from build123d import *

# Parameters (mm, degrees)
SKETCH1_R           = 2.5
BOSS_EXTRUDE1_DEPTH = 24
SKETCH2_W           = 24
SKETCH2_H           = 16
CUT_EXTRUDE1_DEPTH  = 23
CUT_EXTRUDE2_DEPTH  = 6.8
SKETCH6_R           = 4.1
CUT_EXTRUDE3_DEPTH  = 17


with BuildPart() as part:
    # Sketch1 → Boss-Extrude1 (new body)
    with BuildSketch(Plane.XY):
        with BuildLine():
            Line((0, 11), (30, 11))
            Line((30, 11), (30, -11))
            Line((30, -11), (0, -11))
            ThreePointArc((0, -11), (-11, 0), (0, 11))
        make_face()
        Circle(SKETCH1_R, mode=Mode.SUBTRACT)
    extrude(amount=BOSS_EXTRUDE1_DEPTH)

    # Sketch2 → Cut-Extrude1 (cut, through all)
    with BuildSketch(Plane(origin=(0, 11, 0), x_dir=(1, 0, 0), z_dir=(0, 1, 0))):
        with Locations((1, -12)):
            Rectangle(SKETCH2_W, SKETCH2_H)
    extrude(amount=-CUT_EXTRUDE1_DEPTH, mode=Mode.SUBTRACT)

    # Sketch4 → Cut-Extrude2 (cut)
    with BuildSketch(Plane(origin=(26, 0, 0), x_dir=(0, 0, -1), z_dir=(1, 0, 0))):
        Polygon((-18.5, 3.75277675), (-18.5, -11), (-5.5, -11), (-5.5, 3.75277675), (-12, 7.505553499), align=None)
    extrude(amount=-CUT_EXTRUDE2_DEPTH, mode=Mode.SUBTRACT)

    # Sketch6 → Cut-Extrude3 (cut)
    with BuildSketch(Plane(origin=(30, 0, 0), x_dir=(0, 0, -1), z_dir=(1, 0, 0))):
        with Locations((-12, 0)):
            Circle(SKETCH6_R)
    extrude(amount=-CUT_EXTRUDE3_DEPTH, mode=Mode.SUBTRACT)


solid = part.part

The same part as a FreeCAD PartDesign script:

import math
import FreeCAD as App
import Part
import Sketcher
Q = App.Units.Quantity

doc = App.newDocument("Part")
body = doc.addObject("PartDesign::Body", "Body")

# Sketch on XY plane
sketch1 = body.newObject("Sketcher::SketchObject", "Sketch")
sketch1.AttachmentSupport = (doc.getObject("XY_Plane"), [""])
sketch1.MapMode = "FlatFace"
sketch1.addGeometry(Part.LineSegment(App.Vector(30, 11, 0), App.Vector(0, 11, 0)), False)
sketch1.addGeometry(Part.ArcOfCircle(Part.Circle(App.Vector(0, 0, 0), App.Vector(0, 0, 1), 11), math.radians(90), math.radians(270)), False)
sketch1.addGeometry(Part.LineSegment(App.Vector(0, -11, 0), App.Vector(30, -11, 0)), False)
sketch1.addGeometry(Part.LineSegment(App.Vector(30, -11, 0), App.Vector(30, 11, 0)), False)
sketch1.addGeometry(Part.Circle(App.Vector(0, 0, 0), App.Vector(0, 0, 1), 2.5), False)
sketch1.addConstraint(Sketcher.Constraint("Tangent", 0, 2, 1, 1))
sketch1.addConstraint(Sketcher.Constraint("Tangent", 1, 2, 2, 1))
sketch1.addConstraint(Sketcher.Constraint("Coincident", 2, 2, 3, 1))
sketch1.addConstraint(Sketcher.Constraint("Coincident", 3, 2, 0, 1))
sketch1.addConstraint(Sketcher.Constraint("Horizontal", 0))
sketch1.addConstraint(Sketcher.Constraint("Horizontal", 2))
sketch1.addConstraint(Sketcher.Constraint("Vertical", 3))
sketch1.addConstraint(Sketcher.Constraint("Coincident", 1, 3, -1, 1))
sketch1.addConstraint(Sketcher.Constraint("Coincident", 4, 3, -1, 1))
sketch1.addConstraint(Sketcher.Constraint("Diameter", 4, Q("5 mm")))
sketch1.addConstraint(Sketcher.Constraint("Radius", 1, Q("11 mm")))
sketch1.addConstraint(Sketcher.Constraint("DistanceX", 0, 2, 0, 1, Q("30 mm")))
pad1 = body.newObject("PartDesign::Pad", "Pad")
pad1.Profile = sketch1
pad1.Length = 24

# Sketch on XZ plane
sketch2 = body.newObject("Sketcher::SketchObject", "Sketch001")
sketch2.AttachmentSupport = (doc.getObject("XZ_Plane"), [""])
sketch2.MapMode = "FlatFace"
sketch2.AttachmentOffset = App.Placement(App.Vector(0, 0, -11), App.Rotation())
sketch2.addGeometry(Part.LineSegment(App.Vector(-11, 4, 0), App.Vector(-11, 20, 0)), False)
sketch2.addGeometry(Part.LineSegment(App.Vector(-11, 20, 0), App.Vector(13, 20, 0)), False)
sketch2.addGeometry(Part.LineSegment(App.Vector(13, 20, 0), App.Vector(13, 4, 0)), False)
sketch2.addGeometry(Part.LineSegment(App.Vector(13, 4, 0), App.Vector(-11, 4, 0)), False)
sketch2.addConstraint(Sketcher.Constraint("Coincident", 0, 2, 1, 1))
sketch2.addConstraint(Sketcher.Constraint("Coincident", 1, 2, 2, 1))
sketch2.addConstraint(Sketcher.Constraint("Coincident", 2, 2, 3, 1))
sketch2.addConstraint(Sketcher.Constraint("Coincident", 3, 2, 0, 1))
sketch2.addConstraint(Sketcher.Constraint("Vertical", 0))
sketch2.addConstraint(Sketcher.Constraint("Horizontal", 1))
sketch2.addConstraint(Sketcher.Constraint("Vertical", 2))
sketch2.addConstraint(Sketcher.Constraint("Horizontal", 3))
sketch2.addConstraint(Sketcher.Constraint("DistanceX", 1, 1, 1, 2, Q("24 mm")))
sketch2.addConstraint(Sketcher.Constraint("DistanceY", 0, 1, 0, 2, Q("16 mm")))
sketch2.addConstraint(Sketcher.Constraint("DistanceX", 0, 2, -1, 1, Q("11 mm")))
sketch2.addConstraint(Sketcher.Constraint("DistanceY", -1, 1, 0, 2, Q("20 mm")))
pocket1 = body.newObject("PartDesign::Pocket", "Pocket")
pocket1.Profile = sketch2
pocket1.Type = "ThroughAll"
pocket1.Reversed = True

# Sketch on YZ plane
sketch3 = body.newObject("Sketcher::SketchObject", "Sketch002")
sketch3.AttachmentSupport = (doc.getObject("YZ_Plane"), [""])
sketch3.MapMode = "FlatFace"
sketch3.AttachmentOffset = App.Placement(App.Vector(0, 0, 26), App.Rotation())
sketch3.addGeometry(Part.LineSegment(App.Vector(4, 18, 0), App.Vector(-11, 18, 0)), False)
sketch3.addGeometry(Part.LineSegment(App.Vector(-11, 18, 0), App.Vector(-11, 6, 0)), False)
sketch3.addGeometry(Part.LineSegment(App.Vector(-11, 6, 0), App.Vector(4, 6, 0)), False)
sketch3.addGeometry(Part.LineSegment(App.Vector(4, 6, 0), App.Vector(8, 12, 0)), False)
sketch3.addGeometry(Part.LineSegment(App.Vector(8, 12, 0), App.Vector(4, 18, 0)), False)
sketch3.addConstraint(Sketcher.Constraint("Coincident", 0, 2, 1, 1))
sketch3.addConstraint(Sketcher.Constraint("Coincident", 1, 2, 2, 1))
sketch3.addConstraint(Sketcher.Constraint("Coincident", 2, 2, 3, 1))
sketch3.addConstraint(Sketcher.Constraint("Coincident", 3, 2, 4, 1))
sketch3.addConstraint(Sketcher.Constraint("Coincident", 4, 2, 0, 1))
sketch3.addConstraint(Sketcher.Constraint("Horizontal", 0))
sketch3.addConstraint(Sketcher.Constraint("Vertical", 1))
sketch3.addConstraint(Sketcher.Constraint("Horizontal", 2))
sketch3.addConstraint(Sketcher.Constraint("Vertical", 2, 2, 4, 2))
sketch3.addConstraint(Sketcher.Constraint("Equal", 3, 4))
sketch3.addConstraint(Sketcher.Constraint("DistanceY", 1, 2, 1, 1, Q("13 mm")))
sketch3.addConstraint(Sketcher.Constraint("Angle", 3, Q("60 deg")))
sketch3.addConstraint(Sketcher.Constraint("DistanceX", 0, 2, -1, 1, Q("11 mm")))
sketch3.addConstraint(Sketcher.Constraint("DistanceY", -1, 1, 3, 2, Q("12 mm")))
sketch3.addConstraint(Sketcher.Constraint("DistanceX", 0, 2, 0, 1, Q("14.752777 mm")))
pocket2 = body.newObject("PartDesign::Pocket", "Pocket001")
pocket2.Profile = sketch3
pocket2.Length = 6.8

# Sketch on YZ plane
sketch4 = body.newObject("Sketcher::SketchObject", "Sketch003")
sketch4.AttachmentSupport = (doc.getObject("YZ_Plane"), [""])
sketch4.MapMode = "FlatFace"
sketch4.AttachmentOffset = App.Placement(App.Vector(0, 0, 30), App.Rotation())
sketch4.addGeometry(Part.Circle(App.Vector(0, 12, 0), App.Vector(0, 0, 1), 4.1), False)
sketch4.addConstraint(Sketcher.Constraint("PointOnObject", 0, 3, -2))
sketch4.addConstraint(Sketcher.Constraint("Diameter", 0, Q("8.2 mm")))
sketch4.addConstraint(Sketcher.Constraint("DistanceY", -1, 1, 0, 3, Q("12 mm")))
pocket3 = body.newObject("PartDesign::Pocket", "Pocket002")
pocket3.Profile = sketch4
pocket3.Length = 17

doc.recompute()
